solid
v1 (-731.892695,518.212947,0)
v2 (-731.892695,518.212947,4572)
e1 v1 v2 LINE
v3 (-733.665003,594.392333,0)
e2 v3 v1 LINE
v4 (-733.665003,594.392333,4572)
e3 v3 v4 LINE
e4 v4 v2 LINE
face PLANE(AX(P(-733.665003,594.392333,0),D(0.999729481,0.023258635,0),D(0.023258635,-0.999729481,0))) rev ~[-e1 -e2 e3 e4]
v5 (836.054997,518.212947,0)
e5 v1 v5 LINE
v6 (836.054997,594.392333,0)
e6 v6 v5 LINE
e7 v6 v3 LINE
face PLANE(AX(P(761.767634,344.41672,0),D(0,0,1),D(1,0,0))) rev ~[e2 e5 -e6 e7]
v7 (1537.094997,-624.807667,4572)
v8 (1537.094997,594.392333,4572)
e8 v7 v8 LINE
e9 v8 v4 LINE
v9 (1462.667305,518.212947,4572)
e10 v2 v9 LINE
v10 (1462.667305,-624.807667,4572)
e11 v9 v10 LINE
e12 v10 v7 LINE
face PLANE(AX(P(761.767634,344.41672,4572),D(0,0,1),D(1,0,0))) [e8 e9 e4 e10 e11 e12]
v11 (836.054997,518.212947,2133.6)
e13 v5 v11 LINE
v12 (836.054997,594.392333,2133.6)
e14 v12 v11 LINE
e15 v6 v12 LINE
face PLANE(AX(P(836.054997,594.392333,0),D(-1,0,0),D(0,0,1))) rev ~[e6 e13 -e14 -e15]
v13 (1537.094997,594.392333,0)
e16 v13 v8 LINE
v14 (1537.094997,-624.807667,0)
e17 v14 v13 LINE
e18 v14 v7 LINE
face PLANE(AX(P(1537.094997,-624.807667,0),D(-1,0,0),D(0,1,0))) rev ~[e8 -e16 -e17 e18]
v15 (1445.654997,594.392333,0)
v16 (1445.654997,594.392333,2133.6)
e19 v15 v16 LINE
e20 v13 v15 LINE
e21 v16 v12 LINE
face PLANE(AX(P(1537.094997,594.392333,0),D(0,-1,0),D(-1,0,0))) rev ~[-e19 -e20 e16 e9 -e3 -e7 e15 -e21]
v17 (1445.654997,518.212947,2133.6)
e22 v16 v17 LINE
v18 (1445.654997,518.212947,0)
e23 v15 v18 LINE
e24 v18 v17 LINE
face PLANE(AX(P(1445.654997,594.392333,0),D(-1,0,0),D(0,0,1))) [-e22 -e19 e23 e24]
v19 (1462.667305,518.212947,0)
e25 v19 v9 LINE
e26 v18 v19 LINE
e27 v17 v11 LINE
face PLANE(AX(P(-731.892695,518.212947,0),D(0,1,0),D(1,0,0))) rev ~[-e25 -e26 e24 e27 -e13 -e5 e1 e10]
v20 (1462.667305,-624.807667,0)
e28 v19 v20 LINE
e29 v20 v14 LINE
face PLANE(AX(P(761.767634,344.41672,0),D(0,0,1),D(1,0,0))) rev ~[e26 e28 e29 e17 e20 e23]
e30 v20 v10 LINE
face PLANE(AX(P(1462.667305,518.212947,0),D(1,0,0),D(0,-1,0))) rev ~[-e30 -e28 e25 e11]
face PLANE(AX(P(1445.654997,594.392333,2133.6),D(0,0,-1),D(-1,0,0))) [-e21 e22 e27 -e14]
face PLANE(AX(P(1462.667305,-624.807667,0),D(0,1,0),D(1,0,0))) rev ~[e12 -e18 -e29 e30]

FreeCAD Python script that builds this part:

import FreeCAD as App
import Part
import Sketcher
Q = App.Units.Quantity


def add_polygon(sketch, points):
    """Adds a closed chain of lines whose ends are joined by coincident constraints."""
    first, n = sketch.GeometryCount, len(points)
    for a, b in zip(points, points[1:] + points[:1]):
        sketch.addGeometry(Part.LineSegment(App.Vector(*a, 0), App.Vector(*b, 0)), False)
    for i in range(n):
        sketch.addConstraint(Sketcher.Constraint("Coincident", first + i, 2, first + (i + 1) % n, 1))

doc = App.newDocument("Part")
body = doc.addObject("PartDesign::Body", "Body")

# Sketch on XY plane
sketch1 = doc.addObject("Sketcher::SketchObject", "Sketch")
body.addObject(sketch1)
sketch1.AttachmentSupport = (doc.XY_Plane, [""])
sketch1.MapMode = "FlatFace"
add_polygon(sketch1, [(1537, 594), (-734, 594), (-732, 518), (1463, 518), (1463, -625), (1537, -625)])  # lines 0-5
sketch1.addConstraint([
    Sketcher.Constraint("Horizontal", 0),
    Sketcher.Constraint("Horizontal", 2),
    Sketcher.Constraint("Vertical", 3),
    Sketcher.Constraint("Horizontal", 4),
    Sketcher.Constraint("Vertical", 5),
    Sketcher.Constraint("DistanceY", 5, 1, 5, 2, Q("48 in")),
    Sketcher.Constraint("Distance", 1, Q("3 in")),
    Sketcher.Constraint("DistanceX", 0, 2, 0, 1, Q("89.4 in")),
    Sketcher.Constraint("DistanceX", 2, 1, 2, 2, Q("86.4 in")),
    Sketcher.Constraint("DistanceX", 4, 1, 4, 2, 74.427692),
    Sketcher.Constraint("DistanceX", 0, 2, -1, 1, 733.665003),
    Sketcher.Constraint("DistanceY", -1, 1, 0, 2, 594.392333),
])
pad1 = doc.addObject("PartDesign::Pad", "Pad")
body.addObject(pad1)
pad1.Profile = sketch1
pad1.Length = Q("180 in")

# Sketch on XZ plane
sketch2 = doc.addObject("Sketcher::SketchObject", "Sketch001")
body.addObject(sketch2)
sketch2.AttachmentSupport = (doc.XZ_Plane, [""])
sketch2.MapMode = "FlatFace"
sketch2.AttachmentOffset = App.Placement(App.Vector(0, 0, -594.392333), App.Rotation())
add_polygon(sketch2, [(1446, 2134), (1446, 0), (836, 0), (836, 2134)])  # lines 0-3
sketch2.addConstraint([
    Sketcher.Constraint("Vertical", 0),
    Sketcher.Constraint("Horizontal", 1),
    Sketcher.Constraint("Vertical", 2),
    Sketcher.Constraint("Horizontal", 3),
    Sketcher.Constraint("PointOnObject", 0, 2, -1),
    Sketcher.Constraint("DistanceX", 1, 2, 1, 1, Q("24 in")),
    Sketcher.Constraint("DistanceY", 0, 2, 0, 1, Q("84 in")),
    Sketcher.Constraint("DistanceX", -1, 1, 0, 2, 1445.654997),
])
pocket1 = doc.addObject("PartDesign::Pocket", "Pocket")
body.addObject(pocket1)
pocket1.Profile = sketch2
pocket1.Length = Q("6 in")
pocket1.Reversed = True

doc.recompute()
